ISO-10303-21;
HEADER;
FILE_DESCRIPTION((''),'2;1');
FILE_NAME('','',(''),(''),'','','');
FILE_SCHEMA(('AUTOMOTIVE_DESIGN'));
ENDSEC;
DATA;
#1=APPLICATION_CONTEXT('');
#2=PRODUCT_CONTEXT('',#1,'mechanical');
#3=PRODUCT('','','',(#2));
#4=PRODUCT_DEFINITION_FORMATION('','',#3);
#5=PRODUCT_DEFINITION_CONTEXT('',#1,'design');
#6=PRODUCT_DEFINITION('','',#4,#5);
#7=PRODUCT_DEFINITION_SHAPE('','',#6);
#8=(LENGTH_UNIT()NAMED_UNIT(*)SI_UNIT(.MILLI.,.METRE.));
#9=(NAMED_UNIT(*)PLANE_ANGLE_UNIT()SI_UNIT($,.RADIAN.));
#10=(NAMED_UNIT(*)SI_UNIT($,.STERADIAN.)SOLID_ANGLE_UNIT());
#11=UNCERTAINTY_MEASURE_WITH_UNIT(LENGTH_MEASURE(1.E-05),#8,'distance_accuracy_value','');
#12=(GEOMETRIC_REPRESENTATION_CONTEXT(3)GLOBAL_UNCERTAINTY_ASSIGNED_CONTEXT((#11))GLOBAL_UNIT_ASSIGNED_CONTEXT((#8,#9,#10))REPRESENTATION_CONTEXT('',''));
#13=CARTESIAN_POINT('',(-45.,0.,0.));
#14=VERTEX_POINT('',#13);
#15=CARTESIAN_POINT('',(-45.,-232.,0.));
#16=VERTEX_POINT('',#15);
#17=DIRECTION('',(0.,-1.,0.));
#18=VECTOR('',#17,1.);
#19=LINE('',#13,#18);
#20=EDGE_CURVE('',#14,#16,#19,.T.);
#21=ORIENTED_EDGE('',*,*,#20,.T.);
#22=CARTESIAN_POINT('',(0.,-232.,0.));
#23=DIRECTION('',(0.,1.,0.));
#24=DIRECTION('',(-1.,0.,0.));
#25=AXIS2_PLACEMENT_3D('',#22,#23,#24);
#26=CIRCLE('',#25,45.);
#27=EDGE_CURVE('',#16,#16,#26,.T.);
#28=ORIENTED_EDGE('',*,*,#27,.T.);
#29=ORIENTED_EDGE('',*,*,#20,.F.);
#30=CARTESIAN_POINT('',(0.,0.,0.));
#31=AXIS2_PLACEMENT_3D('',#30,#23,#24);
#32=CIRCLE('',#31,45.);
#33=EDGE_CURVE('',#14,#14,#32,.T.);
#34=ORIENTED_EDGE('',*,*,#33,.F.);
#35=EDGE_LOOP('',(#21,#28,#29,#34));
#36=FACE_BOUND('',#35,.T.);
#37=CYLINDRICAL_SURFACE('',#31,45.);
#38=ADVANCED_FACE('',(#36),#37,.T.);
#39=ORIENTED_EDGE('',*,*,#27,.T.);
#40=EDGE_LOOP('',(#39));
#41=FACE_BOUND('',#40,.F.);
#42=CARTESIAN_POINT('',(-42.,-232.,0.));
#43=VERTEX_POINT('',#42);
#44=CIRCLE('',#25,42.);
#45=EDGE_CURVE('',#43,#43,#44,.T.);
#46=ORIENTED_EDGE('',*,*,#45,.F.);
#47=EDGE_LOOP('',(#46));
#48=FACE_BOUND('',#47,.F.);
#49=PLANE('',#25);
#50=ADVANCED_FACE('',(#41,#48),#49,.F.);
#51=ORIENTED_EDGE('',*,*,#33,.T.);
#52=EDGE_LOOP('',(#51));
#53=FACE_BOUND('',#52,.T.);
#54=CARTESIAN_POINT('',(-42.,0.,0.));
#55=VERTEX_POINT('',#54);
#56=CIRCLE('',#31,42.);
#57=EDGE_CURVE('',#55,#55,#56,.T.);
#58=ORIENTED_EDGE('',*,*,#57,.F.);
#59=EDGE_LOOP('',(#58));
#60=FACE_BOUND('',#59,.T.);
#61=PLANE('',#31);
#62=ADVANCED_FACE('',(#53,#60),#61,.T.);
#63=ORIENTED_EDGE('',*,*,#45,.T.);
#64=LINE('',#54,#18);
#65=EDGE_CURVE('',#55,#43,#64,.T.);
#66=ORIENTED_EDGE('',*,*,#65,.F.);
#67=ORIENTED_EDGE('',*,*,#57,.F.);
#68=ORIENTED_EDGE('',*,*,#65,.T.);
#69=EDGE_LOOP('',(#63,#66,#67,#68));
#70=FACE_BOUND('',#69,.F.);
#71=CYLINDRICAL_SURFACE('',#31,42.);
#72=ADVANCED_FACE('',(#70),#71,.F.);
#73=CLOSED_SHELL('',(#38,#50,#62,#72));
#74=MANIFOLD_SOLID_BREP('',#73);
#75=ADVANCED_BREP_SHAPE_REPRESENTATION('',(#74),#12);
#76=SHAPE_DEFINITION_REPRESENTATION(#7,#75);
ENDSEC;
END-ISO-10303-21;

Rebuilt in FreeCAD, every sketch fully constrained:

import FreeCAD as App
import Part
import Sketcher
from FreeCAD import Vector
Q = App.Units.Quantity

doc = App.newDocument("Part")
body = doc.addObject("PartDesign::Body", "Body")

sketch1 = body.newObject("Sketcher::SketchObject", "Sketch")
sketch1.AttachmentSupport = (doc.getObject("XZ_Plane"), [""])
sketch1.MapMode = "FlatFace"
sketch1.addGeometry([
    Part.Circle(Vector(0, 0, 0), Vector(0, 0, 1), 45),
    Part.Circle(Vector(0, 0, 0), Vector(0, 0, 1), 42),
], False)
sketch1.addConstraint([
    Sketcher.Constraint("Coincident", 0, 3, -1, 1),
    Sketcher.Constraint("Coincident", 1, 3, -1, 1),
    Sketcher.Constraint("Diameter", 0, Q("90 mm")),
    Sketcher.Constraint("Diameter", 1, Q("84 mm")),
])
pad1 = body.newObject("PartDesign::Pad", "Pad")
pad1.Profile = sketch1
pad1.Length = 232

doc.recompute()
